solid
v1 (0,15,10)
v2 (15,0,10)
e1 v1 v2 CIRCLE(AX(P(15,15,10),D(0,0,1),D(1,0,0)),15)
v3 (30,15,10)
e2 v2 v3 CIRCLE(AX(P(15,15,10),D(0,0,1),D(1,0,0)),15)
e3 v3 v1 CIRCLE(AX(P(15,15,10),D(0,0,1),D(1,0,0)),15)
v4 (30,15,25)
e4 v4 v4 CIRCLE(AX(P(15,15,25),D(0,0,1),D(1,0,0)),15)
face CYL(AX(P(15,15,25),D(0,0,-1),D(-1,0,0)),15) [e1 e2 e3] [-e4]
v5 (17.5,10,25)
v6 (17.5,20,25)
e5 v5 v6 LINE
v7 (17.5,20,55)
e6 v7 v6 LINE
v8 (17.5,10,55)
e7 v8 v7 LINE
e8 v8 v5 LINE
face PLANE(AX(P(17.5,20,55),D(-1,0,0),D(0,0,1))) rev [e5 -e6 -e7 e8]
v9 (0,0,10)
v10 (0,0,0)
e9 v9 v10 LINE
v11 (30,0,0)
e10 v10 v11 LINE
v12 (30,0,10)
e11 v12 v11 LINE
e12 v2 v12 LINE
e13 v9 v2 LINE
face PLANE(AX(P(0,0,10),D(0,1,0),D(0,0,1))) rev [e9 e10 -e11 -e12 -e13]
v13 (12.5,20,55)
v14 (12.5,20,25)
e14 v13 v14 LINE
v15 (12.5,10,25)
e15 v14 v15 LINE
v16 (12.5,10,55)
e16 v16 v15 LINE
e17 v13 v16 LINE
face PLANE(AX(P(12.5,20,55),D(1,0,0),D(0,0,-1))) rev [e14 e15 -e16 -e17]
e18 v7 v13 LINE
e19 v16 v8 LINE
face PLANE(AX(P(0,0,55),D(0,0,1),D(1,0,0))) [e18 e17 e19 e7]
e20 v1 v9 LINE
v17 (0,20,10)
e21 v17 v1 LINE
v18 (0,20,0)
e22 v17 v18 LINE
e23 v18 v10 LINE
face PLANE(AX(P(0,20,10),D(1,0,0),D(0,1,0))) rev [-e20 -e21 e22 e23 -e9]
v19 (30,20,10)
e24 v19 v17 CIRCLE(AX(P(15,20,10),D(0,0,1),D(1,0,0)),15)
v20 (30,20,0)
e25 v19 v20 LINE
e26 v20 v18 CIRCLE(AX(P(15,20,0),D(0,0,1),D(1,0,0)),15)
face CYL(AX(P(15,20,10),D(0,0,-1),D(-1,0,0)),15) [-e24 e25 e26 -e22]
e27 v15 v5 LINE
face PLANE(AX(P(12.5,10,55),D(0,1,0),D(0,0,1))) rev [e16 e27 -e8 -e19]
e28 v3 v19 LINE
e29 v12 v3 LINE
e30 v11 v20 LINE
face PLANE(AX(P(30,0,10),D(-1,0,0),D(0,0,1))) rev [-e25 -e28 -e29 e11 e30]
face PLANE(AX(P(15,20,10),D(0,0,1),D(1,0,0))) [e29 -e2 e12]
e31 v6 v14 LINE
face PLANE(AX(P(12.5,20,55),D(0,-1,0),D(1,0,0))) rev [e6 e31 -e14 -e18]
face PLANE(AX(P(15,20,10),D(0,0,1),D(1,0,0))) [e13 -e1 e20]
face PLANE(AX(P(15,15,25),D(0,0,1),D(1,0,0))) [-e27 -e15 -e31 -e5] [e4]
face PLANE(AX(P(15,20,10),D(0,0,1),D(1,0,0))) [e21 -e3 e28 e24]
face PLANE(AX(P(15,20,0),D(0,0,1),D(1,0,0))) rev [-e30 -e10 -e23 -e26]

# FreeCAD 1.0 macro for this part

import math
import FreeCAD as App
import Part
import Sketcher

doc = App.newDocument("Part")
body = doc.addObject("PartDesign::Body", "Body")

# Sketch on XY plane
sketch1 = doc.addObject("Sketcher::SketchObject", "Sketch")
body.addObject(sketch1)
sketch1.AttachmentSupport = (doc.XY_Plane, [""])
sketch1.MapMode = "FlatFace"
sketch1.addGeometry([
    Part.LineSegment(App.Vector(0, 0, 0), App.Vector(30, 0, 0)),
    Part.LineSegment(App.Vector(30, 0, 0), App.Vector(30, 20, 0)),
    Part.ArcOfCircle(Part.Circle(App.Vector(15, 20, 0), App.Vector(0, 0, 1), 15), math.radians(0), math.radians(180)),
    Part.LineSegment(App.Vector(0, 20, 0), App.Vector(0, 0, 0)),
], False)
sketch1.addConstraint([
    Sketcher.Constraint("Coincident", 0, 2, 1, 1),
    Sketcher.Constraint("Tangent", 1, 2, 2, 1),
    Sketcher.Constraint("Tangent", 2, 2, 3, 1),
    Sketcher.Constraint("Coincident", 3, 2, 0, 1),
    Sketcher.Constraint("Horizontal", 0),
    Sketcher.Constraint("Vertical", 1),
    Sketcher.Constraint("Vertical", 3),
    Sketcher.Constraint("Coincident", 3, 2, -1, 1),
    Sketcher.Constraint("Radius", 2, 15.0),
    Sketcher.Constraint("DistanceY", 1, 1, 1, 2, 20.0),
])
pad1 = doc.addObject("PartDesign::Pad", "Pad")
body.addObject(pad1)
pad1.Profile = sketch1
pad1.Length = 10

# Sketch on XY plane
sketch2 = doc.addObject("Sketcher::SketchObject", "Sketch001")
body.addObject(sketch2)
sketch2.AttachmentSupport = (doc.XY_Plane, [""])
sketch2.MapMode = "FlatFace"
sketch2.AttachmentOffset = App.Placement(App.Vector(0, 0, 10), App.Rotation())
sketch2.addGeometry(Part.Circle(App.Vector(15, 15, 0), App.Vector(0, 0, 1), 15), False)
sketch2.addConstraint([
    Sketcher.Constraint("Diameter", 0, 30.0),
    Sketcher.Constraint("DistanceX", -1, 1, 0, 3, 15.0),
    Sketcher.Constraint("DistanceY", -1, 1, 0, 3, 15.0),
])
pad2 = doc.addObject("PartDesign::Pad", "Pad001")
body.addObject(pad2)
pad2.Profile = sketch2
pad2.Length = 15

# Sketch on XY plane
sketch3 = doc.addObject("Sketcher::SketchObject", "Sketch002")
body.addObject(sketch3)
sketch3.AttachmentSupport = (doc.XY_Plane, [""])
sketch3.MapMode = "FlatFace"
sketch3.AttachmentOffset = App.Placement(App.Vector(0, 0, 25), App.Rotation())
sketch3.addGeometry([
    Part.LineSegment(App.Vector(12, 20, 0), App.Vector(12, 10, 0)),
    Part.LineSegment(App.Vector(12, 10, 0), App.Vector(18, 10, 0)),
    Part.LineSegment(App.Vector(18, 10, 0), App.Vector(18, 20, 0)),
    Part.LineSegment(App.Vector(18, 20, 0), App.Vector(12, 20, 0)),
], False)
sketch3.addConstraint([
    Sketcher.Constraint("Coincident", 0, 2, 1, 1),
    Sketcher.Constraint("Coincident", 1, 2, 2, 1),
    Sketcher.Constraint("Coincident", 2, 2, 3, 1),
    Sketcher.Constraint("Coincident", 3, 2, 0, 1),
    Sketcher.Constraint("Vertical", 0),
    Sketcher.Constraint("Horizontal", 1),
    Sketcher.Constraint("Vertical", 2),
    Sketcher.Constraint("Horizontal", 3),
    Sketcher.Constraint("DistanceX", 1, 1, 1, 2, 5.0),
    Sketcher.Constraint("DistanceY", 0, 2, 0, 1, 10.0),
    Sketcher.Constraint("DistanceY", -1, 1, 0, 2, 10.0),
    Sketcher.Constraint("DistanceX", -1, 1, 0, 2, 12.5),
])
pad3 = doc.addObject("PartDesign::Pad", "Pad002")
body.addObject(pad3)
pad3.Profile = sketch3
pad3.Length = 30

doc.recompute()
